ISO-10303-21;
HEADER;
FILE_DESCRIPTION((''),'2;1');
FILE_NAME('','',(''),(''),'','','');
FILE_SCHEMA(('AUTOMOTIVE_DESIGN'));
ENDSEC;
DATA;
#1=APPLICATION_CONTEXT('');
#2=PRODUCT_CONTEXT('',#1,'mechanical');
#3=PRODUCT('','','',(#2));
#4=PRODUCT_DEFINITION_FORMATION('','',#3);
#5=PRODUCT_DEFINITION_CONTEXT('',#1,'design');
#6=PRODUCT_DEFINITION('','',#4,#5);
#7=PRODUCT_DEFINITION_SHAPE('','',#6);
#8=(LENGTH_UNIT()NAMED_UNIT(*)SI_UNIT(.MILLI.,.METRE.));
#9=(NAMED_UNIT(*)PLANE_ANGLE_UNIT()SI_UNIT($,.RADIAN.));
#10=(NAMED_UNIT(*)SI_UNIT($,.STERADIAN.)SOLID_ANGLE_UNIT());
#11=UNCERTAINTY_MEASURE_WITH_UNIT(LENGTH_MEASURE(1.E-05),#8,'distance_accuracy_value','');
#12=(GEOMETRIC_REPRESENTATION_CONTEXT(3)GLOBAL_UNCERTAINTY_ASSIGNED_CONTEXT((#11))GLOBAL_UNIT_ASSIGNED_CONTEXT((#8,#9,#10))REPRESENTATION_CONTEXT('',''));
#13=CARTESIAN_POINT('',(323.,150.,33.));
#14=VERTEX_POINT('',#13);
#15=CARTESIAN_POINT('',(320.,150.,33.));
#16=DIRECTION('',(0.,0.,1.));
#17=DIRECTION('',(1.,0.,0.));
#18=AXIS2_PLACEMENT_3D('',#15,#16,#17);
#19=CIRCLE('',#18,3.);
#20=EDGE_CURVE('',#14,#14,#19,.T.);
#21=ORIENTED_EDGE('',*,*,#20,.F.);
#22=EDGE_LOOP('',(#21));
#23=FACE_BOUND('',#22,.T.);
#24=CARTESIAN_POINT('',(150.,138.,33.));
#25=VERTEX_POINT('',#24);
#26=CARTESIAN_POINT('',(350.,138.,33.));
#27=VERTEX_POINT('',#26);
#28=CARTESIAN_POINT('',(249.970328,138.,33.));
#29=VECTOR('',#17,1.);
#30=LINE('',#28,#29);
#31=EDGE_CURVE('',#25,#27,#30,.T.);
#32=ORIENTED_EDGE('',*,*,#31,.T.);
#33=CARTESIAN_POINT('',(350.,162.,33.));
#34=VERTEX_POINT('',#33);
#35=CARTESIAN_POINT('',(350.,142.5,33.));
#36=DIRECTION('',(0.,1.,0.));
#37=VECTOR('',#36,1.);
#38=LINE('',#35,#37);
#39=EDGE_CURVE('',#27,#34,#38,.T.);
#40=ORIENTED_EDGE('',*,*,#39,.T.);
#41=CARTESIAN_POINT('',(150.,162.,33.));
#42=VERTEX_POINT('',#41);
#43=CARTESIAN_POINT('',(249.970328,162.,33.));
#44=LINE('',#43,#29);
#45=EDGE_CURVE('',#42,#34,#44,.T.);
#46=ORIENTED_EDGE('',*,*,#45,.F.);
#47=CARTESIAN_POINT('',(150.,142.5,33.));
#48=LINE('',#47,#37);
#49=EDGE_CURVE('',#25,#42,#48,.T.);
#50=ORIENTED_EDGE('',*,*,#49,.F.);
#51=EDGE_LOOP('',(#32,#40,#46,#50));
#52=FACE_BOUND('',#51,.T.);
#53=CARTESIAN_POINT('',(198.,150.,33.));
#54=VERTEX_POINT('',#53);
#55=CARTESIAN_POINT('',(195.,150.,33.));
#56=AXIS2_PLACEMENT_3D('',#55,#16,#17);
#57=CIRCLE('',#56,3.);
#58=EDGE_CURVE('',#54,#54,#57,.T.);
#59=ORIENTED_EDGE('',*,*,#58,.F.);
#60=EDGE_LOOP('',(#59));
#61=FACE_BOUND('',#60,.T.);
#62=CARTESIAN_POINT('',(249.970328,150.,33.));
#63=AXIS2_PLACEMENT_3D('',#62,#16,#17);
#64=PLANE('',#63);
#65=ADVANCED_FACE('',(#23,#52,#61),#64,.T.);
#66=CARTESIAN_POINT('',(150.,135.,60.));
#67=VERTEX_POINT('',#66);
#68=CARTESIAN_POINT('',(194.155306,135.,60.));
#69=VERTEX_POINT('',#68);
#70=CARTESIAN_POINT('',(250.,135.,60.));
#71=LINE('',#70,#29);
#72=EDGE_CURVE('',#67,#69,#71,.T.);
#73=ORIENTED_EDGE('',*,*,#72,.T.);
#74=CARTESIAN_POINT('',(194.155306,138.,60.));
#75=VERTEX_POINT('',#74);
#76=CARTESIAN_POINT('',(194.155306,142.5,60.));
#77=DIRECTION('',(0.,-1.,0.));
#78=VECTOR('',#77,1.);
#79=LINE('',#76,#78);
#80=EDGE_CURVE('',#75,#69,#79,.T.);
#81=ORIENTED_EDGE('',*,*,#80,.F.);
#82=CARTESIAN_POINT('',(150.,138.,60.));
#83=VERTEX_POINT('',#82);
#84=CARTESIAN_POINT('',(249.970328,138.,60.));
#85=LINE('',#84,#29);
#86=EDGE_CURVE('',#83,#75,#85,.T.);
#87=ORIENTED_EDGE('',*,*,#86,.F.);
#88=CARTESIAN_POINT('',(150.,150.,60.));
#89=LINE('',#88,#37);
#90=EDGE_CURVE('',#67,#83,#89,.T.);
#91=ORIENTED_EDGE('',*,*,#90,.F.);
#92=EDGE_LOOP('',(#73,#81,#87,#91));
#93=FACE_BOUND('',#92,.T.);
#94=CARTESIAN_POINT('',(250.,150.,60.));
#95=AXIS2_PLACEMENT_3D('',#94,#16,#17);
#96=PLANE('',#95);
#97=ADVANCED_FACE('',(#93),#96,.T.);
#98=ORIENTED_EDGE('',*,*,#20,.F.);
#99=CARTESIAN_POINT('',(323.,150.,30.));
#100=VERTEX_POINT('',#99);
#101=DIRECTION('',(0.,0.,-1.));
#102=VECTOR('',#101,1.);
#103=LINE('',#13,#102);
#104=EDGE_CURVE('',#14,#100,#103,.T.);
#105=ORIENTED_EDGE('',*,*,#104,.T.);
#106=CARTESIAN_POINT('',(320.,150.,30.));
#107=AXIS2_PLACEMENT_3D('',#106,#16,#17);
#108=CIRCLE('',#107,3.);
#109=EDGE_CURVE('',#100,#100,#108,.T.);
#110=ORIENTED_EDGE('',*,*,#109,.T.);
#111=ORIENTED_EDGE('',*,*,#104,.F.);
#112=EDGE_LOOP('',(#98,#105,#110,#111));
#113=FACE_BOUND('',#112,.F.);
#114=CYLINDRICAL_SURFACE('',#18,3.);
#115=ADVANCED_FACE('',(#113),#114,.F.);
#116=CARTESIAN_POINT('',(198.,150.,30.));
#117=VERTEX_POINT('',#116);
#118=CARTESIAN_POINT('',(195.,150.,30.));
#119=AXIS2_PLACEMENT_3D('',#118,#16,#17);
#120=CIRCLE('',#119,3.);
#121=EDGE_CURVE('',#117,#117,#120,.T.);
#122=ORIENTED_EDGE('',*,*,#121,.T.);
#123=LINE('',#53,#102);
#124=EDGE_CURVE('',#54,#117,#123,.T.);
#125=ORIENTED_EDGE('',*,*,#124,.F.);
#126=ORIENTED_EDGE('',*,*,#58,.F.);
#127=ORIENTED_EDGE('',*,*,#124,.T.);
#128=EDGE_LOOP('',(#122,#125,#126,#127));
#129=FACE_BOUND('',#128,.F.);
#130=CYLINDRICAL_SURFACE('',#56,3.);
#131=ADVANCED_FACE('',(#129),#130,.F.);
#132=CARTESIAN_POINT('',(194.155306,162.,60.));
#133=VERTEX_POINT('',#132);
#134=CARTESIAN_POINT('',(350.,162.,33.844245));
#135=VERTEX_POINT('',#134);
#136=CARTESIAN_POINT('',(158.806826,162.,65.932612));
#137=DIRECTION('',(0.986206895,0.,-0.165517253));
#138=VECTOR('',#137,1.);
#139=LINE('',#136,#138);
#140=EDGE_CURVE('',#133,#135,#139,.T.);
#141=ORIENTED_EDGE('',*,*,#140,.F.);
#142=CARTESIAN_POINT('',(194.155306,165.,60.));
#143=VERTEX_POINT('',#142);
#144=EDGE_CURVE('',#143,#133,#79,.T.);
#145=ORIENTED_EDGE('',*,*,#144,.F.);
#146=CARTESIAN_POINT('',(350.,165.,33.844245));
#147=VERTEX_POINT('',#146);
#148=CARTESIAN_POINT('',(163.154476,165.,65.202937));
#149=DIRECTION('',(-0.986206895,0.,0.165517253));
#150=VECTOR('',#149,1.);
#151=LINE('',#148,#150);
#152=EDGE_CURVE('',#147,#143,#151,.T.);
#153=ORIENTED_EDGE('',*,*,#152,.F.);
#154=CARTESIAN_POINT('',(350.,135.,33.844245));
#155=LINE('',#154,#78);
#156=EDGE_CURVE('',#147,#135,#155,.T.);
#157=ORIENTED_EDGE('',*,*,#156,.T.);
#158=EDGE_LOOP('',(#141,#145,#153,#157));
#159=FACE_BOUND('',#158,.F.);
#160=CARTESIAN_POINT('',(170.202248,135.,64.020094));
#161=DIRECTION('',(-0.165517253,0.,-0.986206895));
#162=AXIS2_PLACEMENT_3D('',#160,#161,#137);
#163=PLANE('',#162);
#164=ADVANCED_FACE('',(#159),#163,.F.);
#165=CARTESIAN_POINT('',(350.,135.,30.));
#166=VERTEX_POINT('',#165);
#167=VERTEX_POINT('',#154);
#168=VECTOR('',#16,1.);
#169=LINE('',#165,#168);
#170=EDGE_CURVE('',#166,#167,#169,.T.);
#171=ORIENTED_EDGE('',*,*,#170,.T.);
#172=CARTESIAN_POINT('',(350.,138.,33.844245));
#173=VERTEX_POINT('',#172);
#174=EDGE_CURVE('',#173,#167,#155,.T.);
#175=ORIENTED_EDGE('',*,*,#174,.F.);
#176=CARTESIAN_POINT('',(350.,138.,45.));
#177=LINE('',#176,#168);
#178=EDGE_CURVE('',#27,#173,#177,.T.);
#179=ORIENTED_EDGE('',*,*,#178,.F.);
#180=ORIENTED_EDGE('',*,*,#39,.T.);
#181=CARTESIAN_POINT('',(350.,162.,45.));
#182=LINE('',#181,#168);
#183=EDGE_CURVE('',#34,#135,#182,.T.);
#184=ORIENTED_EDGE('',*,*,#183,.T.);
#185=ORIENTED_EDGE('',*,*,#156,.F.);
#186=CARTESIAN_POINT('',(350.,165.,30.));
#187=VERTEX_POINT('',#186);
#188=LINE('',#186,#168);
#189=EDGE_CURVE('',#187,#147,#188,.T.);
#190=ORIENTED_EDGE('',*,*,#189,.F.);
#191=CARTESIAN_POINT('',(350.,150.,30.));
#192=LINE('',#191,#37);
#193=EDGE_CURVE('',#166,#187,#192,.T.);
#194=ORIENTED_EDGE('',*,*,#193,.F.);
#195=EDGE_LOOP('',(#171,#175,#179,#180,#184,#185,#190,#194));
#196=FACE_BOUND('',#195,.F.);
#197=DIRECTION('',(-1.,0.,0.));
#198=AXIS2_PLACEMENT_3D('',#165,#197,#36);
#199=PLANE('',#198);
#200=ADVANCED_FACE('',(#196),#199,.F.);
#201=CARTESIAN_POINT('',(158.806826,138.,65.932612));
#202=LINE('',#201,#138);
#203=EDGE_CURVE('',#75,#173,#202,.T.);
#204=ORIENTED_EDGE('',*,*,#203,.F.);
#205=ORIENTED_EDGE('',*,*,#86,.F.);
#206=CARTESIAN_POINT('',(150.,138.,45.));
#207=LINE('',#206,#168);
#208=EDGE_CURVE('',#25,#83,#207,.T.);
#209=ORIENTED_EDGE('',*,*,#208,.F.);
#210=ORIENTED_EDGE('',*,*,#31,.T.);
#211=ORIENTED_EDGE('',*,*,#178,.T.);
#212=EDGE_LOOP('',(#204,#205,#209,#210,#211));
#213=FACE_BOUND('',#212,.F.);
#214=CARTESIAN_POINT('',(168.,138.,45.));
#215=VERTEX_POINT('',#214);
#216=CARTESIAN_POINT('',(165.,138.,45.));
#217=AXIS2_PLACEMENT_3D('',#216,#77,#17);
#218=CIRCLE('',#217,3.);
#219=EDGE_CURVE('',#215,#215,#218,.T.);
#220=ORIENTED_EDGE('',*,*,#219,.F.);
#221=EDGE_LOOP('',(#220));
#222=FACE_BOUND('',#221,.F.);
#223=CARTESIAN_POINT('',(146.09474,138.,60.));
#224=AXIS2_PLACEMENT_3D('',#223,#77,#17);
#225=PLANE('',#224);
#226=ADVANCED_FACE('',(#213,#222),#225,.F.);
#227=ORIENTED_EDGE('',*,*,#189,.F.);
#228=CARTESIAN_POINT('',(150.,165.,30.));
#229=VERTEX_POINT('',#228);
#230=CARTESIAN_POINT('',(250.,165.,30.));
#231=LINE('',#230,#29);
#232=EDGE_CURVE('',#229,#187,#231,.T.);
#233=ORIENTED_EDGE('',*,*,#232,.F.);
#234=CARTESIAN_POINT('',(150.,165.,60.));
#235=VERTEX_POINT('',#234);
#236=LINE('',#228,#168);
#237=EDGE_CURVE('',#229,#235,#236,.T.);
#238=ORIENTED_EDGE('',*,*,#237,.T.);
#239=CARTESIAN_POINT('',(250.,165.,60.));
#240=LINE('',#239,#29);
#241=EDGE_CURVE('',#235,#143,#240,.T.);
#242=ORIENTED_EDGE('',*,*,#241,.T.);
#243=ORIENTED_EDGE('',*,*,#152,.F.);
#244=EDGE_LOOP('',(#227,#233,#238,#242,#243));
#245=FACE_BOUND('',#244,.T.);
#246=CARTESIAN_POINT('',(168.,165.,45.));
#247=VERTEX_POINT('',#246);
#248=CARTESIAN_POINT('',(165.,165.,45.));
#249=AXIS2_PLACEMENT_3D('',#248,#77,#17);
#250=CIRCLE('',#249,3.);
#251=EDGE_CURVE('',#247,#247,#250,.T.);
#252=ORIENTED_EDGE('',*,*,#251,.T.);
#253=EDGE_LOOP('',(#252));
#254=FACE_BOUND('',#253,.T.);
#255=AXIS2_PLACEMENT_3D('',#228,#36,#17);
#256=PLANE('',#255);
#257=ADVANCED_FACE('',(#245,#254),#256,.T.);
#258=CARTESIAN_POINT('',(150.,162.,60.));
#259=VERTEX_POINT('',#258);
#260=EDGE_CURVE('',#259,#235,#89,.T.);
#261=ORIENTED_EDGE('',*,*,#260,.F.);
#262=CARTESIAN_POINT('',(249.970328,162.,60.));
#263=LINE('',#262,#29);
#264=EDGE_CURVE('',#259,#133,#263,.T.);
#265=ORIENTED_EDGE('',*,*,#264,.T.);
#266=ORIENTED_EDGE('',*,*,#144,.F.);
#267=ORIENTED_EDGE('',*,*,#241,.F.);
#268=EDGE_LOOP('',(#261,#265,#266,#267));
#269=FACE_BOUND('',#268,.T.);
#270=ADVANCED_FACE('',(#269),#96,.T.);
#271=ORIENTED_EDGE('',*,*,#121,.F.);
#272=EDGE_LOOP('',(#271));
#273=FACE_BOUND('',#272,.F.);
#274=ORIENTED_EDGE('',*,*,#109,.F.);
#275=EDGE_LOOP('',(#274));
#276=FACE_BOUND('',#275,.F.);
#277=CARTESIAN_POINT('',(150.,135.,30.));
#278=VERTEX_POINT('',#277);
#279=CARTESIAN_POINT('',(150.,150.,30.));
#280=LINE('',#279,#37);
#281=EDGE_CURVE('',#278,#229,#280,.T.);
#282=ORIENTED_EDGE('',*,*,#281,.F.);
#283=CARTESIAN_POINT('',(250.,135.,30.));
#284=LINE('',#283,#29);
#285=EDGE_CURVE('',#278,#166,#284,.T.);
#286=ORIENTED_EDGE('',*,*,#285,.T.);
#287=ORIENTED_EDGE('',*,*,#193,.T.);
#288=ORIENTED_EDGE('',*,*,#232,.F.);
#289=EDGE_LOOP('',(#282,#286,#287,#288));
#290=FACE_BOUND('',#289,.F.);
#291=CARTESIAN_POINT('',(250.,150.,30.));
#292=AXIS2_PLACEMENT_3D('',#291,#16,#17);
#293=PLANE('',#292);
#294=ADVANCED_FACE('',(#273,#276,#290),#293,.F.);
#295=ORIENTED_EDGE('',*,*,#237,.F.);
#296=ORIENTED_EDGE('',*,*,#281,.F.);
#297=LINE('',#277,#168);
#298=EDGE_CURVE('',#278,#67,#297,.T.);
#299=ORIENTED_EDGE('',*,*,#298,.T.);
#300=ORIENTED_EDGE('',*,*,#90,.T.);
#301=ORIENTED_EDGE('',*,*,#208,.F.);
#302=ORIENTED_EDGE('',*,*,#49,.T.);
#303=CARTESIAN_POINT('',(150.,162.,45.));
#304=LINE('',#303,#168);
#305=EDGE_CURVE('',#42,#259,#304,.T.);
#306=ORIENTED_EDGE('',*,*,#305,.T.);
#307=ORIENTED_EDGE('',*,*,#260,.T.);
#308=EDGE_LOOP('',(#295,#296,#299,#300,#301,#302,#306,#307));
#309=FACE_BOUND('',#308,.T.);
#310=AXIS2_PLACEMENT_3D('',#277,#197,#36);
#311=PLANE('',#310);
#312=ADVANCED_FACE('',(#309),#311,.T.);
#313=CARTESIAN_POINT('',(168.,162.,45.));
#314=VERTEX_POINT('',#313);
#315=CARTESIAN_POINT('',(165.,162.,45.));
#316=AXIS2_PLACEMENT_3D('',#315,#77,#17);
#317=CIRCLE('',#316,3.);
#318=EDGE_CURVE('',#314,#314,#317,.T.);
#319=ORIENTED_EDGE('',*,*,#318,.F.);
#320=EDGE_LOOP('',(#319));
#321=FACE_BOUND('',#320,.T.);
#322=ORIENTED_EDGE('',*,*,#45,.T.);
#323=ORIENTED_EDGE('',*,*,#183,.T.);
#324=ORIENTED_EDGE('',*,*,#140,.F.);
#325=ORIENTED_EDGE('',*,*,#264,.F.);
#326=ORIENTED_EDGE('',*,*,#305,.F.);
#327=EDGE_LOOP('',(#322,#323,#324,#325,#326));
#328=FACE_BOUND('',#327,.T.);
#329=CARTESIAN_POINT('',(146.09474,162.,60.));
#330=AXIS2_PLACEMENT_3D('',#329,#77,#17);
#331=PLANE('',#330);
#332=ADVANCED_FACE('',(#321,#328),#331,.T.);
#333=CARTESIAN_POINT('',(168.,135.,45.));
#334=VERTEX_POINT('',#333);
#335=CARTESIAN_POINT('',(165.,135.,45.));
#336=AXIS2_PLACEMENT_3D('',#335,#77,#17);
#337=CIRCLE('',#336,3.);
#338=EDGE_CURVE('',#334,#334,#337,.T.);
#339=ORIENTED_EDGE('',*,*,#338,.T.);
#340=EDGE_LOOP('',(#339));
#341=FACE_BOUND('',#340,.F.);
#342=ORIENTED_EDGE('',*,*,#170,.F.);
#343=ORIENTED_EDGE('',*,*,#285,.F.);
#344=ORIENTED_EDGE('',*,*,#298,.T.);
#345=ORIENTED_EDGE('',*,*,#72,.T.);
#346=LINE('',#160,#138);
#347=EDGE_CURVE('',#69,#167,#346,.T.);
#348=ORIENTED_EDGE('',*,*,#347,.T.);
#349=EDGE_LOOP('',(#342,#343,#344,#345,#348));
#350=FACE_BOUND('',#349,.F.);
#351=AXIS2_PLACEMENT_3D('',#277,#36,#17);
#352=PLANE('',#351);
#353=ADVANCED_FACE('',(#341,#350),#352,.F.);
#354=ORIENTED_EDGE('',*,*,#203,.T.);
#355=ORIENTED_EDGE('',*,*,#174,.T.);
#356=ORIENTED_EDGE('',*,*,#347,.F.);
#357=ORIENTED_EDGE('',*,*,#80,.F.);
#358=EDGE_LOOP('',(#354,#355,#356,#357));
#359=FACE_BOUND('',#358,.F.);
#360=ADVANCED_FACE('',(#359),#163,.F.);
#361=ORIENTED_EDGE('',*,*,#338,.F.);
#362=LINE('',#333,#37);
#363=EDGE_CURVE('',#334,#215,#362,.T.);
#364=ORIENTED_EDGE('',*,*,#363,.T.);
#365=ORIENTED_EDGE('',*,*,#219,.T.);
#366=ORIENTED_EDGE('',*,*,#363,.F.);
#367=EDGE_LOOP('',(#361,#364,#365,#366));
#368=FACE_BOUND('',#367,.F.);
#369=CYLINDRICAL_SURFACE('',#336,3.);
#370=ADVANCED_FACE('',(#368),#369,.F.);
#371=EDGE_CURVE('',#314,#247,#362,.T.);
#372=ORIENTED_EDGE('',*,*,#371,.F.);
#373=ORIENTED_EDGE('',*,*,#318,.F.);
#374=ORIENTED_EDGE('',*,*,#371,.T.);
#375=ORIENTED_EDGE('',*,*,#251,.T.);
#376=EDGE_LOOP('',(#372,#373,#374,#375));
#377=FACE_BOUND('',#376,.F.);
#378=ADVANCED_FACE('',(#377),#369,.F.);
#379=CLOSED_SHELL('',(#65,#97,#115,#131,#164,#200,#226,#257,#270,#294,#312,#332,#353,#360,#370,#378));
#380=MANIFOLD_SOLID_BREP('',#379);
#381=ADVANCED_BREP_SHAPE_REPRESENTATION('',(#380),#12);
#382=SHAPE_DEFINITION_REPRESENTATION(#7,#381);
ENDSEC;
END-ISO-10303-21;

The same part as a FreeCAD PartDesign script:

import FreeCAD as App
import Part
import Sketcher
from FreeCAD import Vector


def add_polygon(sketch, points):
    """Adds a closed chain of lines whose ends are joined by coincident constraints."""
    first, n = sketch.GeometryCount, len(points)
    for a, b in zip(points, points[1:] + points[:1]):
        sketch.addGeometry(Part.LineSegment(App.Vector(*a, 0), App.Vector(*b, 0)), False)
    for i in range(n):
        sketch.addConstraint(Sketcher.Constraint("Coincident", first + i, 2, first + (i + 1) % n, 1))

doc = App.newDocument("Part")
params = doc.addObject("Spreadsheet::Sheet", "Params")
for row, (alias, value) in enumerate([
    ("sketch1_width", "200 mm"),
    ("sketch1_height", "30 mm"),
    ("pad1_length", "30 mm"),
    ("sketch2_height", "24 mm"),
    ("pocket1_length", "27 mm"),
    ("pocket2_length", "50 mm"),
    ("sketch4_diameter", "6 mm"),
    ("pocket3_length", "50 mm"),
    ("sketch5_diameter", "6 mm"),
    ("pocket4_length", "5 mm"),
], start=1):
    params.set(f"A{row}", alias)
    params.set(f"B{row}", "=" + value)
    params.setAlias(f"B{row}", alias)

body = doc.addObject("PartDesign::Body", "Body")

sketch1 = body.newObject("Sketcher::SketchObject", "Sketch")
sketch1.AttachmentSupport = (doc.getObject("XY_Plane"), [""])
sketch1.MapMode = "FlatFace"
add_polygon(sketch1, [(0, 30), (0, 0), (200, 0), (200, 30)])
sketch1.addConstraint(Sketcher.Constraint("Vertical", 0))
sketch1.addConstraint(Sketcher.Constraint("Horizontal", 1))
sketch1.addConstraint(Sketcher.Constraint("Vertical", 2))
sketch1.addConstraint(Sketcher.Constraint("Horizontal", 3))
sketch1.addConstraint(Sketcher.Constraint("Coincident", 0, 2, -1, 1))
sketch1.addConstraint(Sketcher.Constraint("DistanceX", 1, 1, 1, 2, 200.0))
sketch1.addConstraint(Sketcher.Constraint("DistanceY", 0, 2, 0, 1, 30.0))
sketch1.setExpression("Constraints[9]", "Params.sketch1_width")
sketch1.setExpression("Constraints[10]", "Params.sketch1_height")
pad1 = body.newObject("PartDesign::Pad", "Pad")
pad1.Profile = sketch1
pad1.setExpression("Length", "Params.pad1_length")

sketch2 = body.newObject("Sketcher::SketchObject", "Sketch001")
sketch2.AttachmentSupport = (doc.getObject("XY_Plane"), [""])
sketch2.MapMode = "FlatFace"
sketch2.AttachmentOffset = App.Placement(Vector(0, 0, 30), App.Rotation())
add_polygon(sketch2, [(-4, 27), (-4, 3), (204, 3), (204, 27)])
sketch2.addConstraint(Sketcher.Constraint("Vertical", 0))
sketch2.addConstraint(Sketcher.Constraint("Horizontal", 1))
sketch2.addConstraint(Sketcher.Constraint("Vertical", 2))
sketch2.addConstraint(Sketcher.Constraint("Horizontal", 3))
sketch2.addConstraint(Sketcher.Constraint("DistanceY", 0, 2, 0, 1, 24.0))
sketch2.addConstraint(Sketcher.Constraint("DistanceY", -1, 1, 0, 2, 3.0))
sketch2.addConstraint(Sketcher.Constraint("DistanceX", 1, 1, 1, 2, 207.751177))
sketch2.addConstraint(Sketcher.Constraint("DistanceX", 0, 2, -1, 1, 3.90526))
sketch2.setExpression("Constraints[8]", "Params.sketch2_height")
pocket1 = body.newObject("PartDesign::Pocket", "Pocket")
pocket1.Profile = sketch2
pocket1.setExpression("Length", "Params.pocket1_length")

sketch3 = body.newObject("Sketcher::SketchObject", "Sketch002")
sketch3.AttachmentSupport = (doc.getObject("XZ_Plane"), [""])
sketch3.MapMode = "FlatFace"
add_polygon(sketch3, [(20, 34), (203, 3), (217, 34)])
sketch3.addConstraint(Sketcher.Constraint("Horizontal", 2))
sketch3.addConstraint(Sketcher.Constraint("DistanceX", 0, 2, 1, 2, 14.292499))
sketch3.addConstraint(Sketcher.Constraint("DistanceX", 2, 2, 2, 1, 196.776925))
sketch3.addConstraint(Sketcher.Constraint("DistanceX", -1, 1, 2, 2, 20.202248))
sketch3.addConstraint(Sketcher.Constraint("DistanceY", 0, 2, 1, 2, 30.626759))
sketch3.addConstraint(Sketcher.Constraint("DistanceY", -1, 1, 0, 2, 3.393335))
pocket2 = body.newObject("PartDesign::Pocket", "Pocket001")
pocket2.Profile = sketch3
pocket2.setExpression("Length", "Params.pocket2_length")

sketch4 = body.newObject("Sketcher::SketchObject", "Sketch003")
sketch4.AttachmentSupport = (doc.getObject("XZ_Plane"), [""])
sketch4.MapMode = "FlatFace"
sketch4.addGeometry(Part.Circle(Vector(15, 15, 0), Vector(0, 0, 1), 3), False)
sketch4.addConstraint(Sketcher.Constraint("Diameter", 0, 6.0))
sketch4.addConstraint(Sketcher.Constraint("DistanceX", -1, 1, 0, 3, 15.0))
sketch4.addConstraint(Sketcher.Constraint("DistanceY", -1, 1, 0, 3, 15.0))
sketch4.setExpression("Constraints[0]", "Params.sketch4_diameter")
pocket3 = body.newObject("PartDesign::Pocket", "Pocket002")
pocket3.Profile = sketch4
pocket3.setExpression("Length", "Params.pocket3_length")

sketch5 = body.newObject("Sketcher::SketchObject", "Sketch004")
sketch5.AttachmentSupport = (doc.getObject("XY_Plane"), [""])
sketch5.MapMode = "FlatFace"
sketch5.AttachmentOffset = App.Placement(Vector(0, 0, 3), App.Rotation())
sketch5.addGeometry(Part.Circle(Vector(45, 15, 0), Vector(0, 0, 1), 3), False)
sketch5.addGeometry(Part.Circle(Vector(170, 15, 0), Vector(0, 0, 1), 3), False)
sketch5.addConstraint(Sketcher.Constraint("Equal", 0, 1))
sketch5.addConstraint(Sketcher.Constraint("Horizontal", 0, 3, 1, 3))
sketch5.addConstraint(Sketcher.Constraint("Diameter", 0, 6.0))
sketch5.addConstraint(Sketcher.Constraint("DistanceX", -1, 1, 0, 3, 45.0))
sketch5.addConstraint(Sketcher.Constraint("DistanceY", -1, 1, 0, 3, 15.0))
sketch5.addConstraint(Sketcher.Constraint("DistanceX", -1, 1, 1, 3, 170.0))
sketch5.setExpression("Constraints[2]", "Params.sketch5_diameter")
pocket4 = body.newObject("PartDesign::Pocket", "Pocket003")
pocket4.Profile = sketch5
pocket4.setExpression("Length", "Params.pocket4_length")
body2 = doc.addObject("PartDesign::Body", "Body001")
doc.recompute()

body.Placement = App.Placement(Vector(150, 135, 30), App.Rotation(Vector(0, 0, 1), 0))
boolean = body2.newObject("PartDesign::Boolean", "Boolean")
boolean.Type = "Fuse"
boolean.addObjects([body])

doc.recompute()
